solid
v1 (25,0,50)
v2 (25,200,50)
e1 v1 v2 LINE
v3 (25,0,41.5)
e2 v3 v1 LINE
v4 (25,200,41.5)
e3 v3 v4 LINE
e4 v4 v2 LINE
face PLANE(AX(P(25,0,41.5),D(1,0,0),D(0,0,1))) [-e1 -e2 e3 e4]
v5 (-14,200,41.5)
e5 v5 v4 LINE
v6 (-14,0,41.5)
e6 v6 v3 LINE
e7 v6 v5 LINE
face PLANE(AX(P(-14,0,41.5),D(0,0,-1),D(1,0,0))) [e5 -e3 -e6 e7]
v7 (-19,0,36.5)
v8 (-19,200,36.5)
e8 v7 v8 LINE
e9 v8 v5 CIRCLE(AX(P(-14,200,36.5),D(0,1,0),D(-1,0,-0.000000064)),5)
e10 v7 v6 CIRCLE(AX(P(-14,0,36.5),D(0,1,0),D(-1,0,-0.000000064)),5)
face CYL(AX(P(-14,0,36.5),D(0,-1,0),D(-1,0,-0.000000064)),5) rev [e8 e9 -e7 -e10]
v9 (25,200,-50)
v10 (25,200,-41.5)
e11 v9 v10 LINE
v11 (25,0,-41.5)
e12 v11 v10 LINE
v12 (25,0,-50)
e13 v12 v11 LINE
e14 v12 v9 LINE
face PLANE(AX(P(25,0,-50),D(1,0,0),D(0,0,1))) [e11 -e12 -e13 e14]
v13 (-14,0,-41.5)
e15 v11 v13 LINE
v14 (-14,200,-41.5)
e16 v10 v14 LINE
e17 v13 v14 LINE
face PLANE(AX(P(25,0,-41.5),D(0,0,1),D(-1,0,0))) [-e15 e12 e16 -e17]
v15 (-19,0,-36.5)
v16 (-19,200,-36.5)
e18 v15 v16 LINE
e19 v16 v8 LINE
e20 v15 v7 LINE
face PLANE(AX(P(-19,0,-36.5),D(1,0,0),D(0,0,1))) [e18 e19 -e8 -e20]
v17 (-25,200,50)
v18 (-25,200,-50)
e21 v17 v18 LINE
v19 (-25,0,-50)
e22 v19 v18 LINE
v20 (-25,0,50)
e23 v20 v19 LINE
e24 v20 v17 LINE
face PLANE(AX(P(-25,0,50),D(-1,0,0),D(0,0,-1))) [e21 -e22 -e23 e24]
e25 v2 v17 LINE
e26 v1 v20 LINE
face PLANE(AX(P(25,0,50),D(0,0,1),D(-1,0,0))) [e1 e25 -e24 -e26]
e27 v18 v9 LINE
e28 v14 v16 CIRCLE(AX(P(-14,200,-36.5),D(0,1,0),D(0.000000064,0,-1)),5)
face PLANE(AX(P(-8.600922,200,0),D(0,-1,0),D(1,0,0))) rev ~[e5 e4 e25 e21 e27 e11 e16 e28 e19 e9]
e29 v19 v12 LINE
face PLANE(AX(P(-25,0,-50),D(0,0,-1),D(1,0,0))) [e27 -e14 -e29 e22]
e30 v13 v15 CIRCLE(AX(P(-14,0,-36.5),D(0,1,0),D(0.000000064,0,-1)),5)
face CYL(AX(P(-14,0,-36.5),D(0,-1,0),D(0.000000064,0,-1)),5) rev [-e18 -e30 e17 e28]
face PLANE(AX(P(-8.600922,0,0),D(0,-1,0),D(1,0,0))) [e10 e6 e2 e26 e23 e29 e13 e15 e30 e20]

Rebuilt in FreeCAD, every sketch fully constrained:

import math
import FreeCAD as App
import Part
import Sketcher
from FreeCAD import Vector

doc = App.newDocument("Part")
body = doc.addObject("PartDesign::Body", "Body")

# Sketch on XZ plane
sketch1 = doc.addObject("Sketcher::SketchObject", "Sketch")
body.addObject(sketch1)
sketch1.AttachmentSupport = (doc.XZ_Plane, [""])
sketch1.MapMode = "FlatFace"
sketch1.addGeometry([
    Part.LineSegment(Vector(25, 41.5, 0), Vector(25, 50, 0)),  # 0
    Part.LineSegment(Vector(25, 50, 0), Vector(-25, 50, 0)),  # 1
    Part.LineSegment(Vector(-25, 50, 0), Vector(-25, -50, 0)),  # 2
    Part.LineSegment(Vector(-25, -50, 0), Vector(25, -50, 0)),  # 3
    Part.LineSegment(Vector(25, -50, 0), Vector(25, -41.5, 0)),  # 4
    Part.LineSegment(Vector(25, -41.5, 0), Vector(-14, -41.5, 0)),  # 5
    Part.ArcOfCircle(Part.Circle(Vector(-14, -36.5, 0), Vector(0, 0, 1), 5), math.radians(180), math.radians(270)),  # 6
    Part.LineSegment(Vector(-19, -36.5, 0), Vector(-19, 36.5, 0)),  # 7
    Part.ArcOfCircle(Part.Circle(Vector(-14, 36.5, 0), Vector(0, 0, 1), 5), math.radians(90), math.radians(180)),  # 8
    Part.LineSegment(Vector(-14, 41.5, 0), Vector(25, 41.5, 0)),  # 9
], False)
sketch1.addConstraint([
    Sketcher.Constraint("Coincident", 0, 2, 1, 1),
    Sketcher.Constraint("Coincident", 1, 2, 2, 1),
    Sketcher.Constraint("Coincident", 2, 2, 3, 1),
    Sketcher.Constraint("Coincident", 3, 2, 4, 1),
    Sketcher.Constraint("Coincident", 4, 2, 5, 1),
    Sketcher.Constraint("Tangent", 5, 2, 6, 2),
    Sketcher.Constraint("Tangent", 6, 1, 7, 1),
    Sketcher.Constraint("Tangent", 7, 2, 8, 2),
    Sketcher.Constraint("Tangent", 8, 1, 9, 1),
    Sketcher.Constraint("Coincident", 9, 2, 0, 1),
    Sketcher.Constraint("Vertical", 0),
    Sketcher.Constraint("Horizontal", 1),
    Sketcher.Constraint("Vertical", 2),
    Sketcher.Constraint("Horizontal", 3),
    Sketcher.Constraint("Vertical", 4),
    Sketcher.Constraint("Horizontal", 5),
    Sketcher.Constraint("Vertical", 7),
    Sketcher.Constraint("Horizontal", 9),
    Sketcher.Constraint("Equal", 6, 8),
    Sketcher.Constraint("Symmetric", 0, 2, 2, 2, -1, 1),
    Sketcher.Constraint("Symmetric", 4, 2, 9, 2, -1),
    Sketcher.Constraint("Radius", 6, 5.0),
    Sketcher.Constraint("DistanceX", 1, 2, 1, 1, 50.0),
    Sketcher.Constraint("DistanceX", 5, 2, 5, 1, 39.0),
    Sketcher.Constraint("DistanceY", 2, 2, 2, 1, 100.0),
    Sketcher.Constraint("DistanceY", 7, 1, 7, 2, 73.0),
])
pad1 = doc.addObject("PartDesign::Pad", "Pad")
body.addObject(pad1)
pad1.Profile = sketch1
pad1.Length = 200
pad1.Reversed = True

doc.recompute()
